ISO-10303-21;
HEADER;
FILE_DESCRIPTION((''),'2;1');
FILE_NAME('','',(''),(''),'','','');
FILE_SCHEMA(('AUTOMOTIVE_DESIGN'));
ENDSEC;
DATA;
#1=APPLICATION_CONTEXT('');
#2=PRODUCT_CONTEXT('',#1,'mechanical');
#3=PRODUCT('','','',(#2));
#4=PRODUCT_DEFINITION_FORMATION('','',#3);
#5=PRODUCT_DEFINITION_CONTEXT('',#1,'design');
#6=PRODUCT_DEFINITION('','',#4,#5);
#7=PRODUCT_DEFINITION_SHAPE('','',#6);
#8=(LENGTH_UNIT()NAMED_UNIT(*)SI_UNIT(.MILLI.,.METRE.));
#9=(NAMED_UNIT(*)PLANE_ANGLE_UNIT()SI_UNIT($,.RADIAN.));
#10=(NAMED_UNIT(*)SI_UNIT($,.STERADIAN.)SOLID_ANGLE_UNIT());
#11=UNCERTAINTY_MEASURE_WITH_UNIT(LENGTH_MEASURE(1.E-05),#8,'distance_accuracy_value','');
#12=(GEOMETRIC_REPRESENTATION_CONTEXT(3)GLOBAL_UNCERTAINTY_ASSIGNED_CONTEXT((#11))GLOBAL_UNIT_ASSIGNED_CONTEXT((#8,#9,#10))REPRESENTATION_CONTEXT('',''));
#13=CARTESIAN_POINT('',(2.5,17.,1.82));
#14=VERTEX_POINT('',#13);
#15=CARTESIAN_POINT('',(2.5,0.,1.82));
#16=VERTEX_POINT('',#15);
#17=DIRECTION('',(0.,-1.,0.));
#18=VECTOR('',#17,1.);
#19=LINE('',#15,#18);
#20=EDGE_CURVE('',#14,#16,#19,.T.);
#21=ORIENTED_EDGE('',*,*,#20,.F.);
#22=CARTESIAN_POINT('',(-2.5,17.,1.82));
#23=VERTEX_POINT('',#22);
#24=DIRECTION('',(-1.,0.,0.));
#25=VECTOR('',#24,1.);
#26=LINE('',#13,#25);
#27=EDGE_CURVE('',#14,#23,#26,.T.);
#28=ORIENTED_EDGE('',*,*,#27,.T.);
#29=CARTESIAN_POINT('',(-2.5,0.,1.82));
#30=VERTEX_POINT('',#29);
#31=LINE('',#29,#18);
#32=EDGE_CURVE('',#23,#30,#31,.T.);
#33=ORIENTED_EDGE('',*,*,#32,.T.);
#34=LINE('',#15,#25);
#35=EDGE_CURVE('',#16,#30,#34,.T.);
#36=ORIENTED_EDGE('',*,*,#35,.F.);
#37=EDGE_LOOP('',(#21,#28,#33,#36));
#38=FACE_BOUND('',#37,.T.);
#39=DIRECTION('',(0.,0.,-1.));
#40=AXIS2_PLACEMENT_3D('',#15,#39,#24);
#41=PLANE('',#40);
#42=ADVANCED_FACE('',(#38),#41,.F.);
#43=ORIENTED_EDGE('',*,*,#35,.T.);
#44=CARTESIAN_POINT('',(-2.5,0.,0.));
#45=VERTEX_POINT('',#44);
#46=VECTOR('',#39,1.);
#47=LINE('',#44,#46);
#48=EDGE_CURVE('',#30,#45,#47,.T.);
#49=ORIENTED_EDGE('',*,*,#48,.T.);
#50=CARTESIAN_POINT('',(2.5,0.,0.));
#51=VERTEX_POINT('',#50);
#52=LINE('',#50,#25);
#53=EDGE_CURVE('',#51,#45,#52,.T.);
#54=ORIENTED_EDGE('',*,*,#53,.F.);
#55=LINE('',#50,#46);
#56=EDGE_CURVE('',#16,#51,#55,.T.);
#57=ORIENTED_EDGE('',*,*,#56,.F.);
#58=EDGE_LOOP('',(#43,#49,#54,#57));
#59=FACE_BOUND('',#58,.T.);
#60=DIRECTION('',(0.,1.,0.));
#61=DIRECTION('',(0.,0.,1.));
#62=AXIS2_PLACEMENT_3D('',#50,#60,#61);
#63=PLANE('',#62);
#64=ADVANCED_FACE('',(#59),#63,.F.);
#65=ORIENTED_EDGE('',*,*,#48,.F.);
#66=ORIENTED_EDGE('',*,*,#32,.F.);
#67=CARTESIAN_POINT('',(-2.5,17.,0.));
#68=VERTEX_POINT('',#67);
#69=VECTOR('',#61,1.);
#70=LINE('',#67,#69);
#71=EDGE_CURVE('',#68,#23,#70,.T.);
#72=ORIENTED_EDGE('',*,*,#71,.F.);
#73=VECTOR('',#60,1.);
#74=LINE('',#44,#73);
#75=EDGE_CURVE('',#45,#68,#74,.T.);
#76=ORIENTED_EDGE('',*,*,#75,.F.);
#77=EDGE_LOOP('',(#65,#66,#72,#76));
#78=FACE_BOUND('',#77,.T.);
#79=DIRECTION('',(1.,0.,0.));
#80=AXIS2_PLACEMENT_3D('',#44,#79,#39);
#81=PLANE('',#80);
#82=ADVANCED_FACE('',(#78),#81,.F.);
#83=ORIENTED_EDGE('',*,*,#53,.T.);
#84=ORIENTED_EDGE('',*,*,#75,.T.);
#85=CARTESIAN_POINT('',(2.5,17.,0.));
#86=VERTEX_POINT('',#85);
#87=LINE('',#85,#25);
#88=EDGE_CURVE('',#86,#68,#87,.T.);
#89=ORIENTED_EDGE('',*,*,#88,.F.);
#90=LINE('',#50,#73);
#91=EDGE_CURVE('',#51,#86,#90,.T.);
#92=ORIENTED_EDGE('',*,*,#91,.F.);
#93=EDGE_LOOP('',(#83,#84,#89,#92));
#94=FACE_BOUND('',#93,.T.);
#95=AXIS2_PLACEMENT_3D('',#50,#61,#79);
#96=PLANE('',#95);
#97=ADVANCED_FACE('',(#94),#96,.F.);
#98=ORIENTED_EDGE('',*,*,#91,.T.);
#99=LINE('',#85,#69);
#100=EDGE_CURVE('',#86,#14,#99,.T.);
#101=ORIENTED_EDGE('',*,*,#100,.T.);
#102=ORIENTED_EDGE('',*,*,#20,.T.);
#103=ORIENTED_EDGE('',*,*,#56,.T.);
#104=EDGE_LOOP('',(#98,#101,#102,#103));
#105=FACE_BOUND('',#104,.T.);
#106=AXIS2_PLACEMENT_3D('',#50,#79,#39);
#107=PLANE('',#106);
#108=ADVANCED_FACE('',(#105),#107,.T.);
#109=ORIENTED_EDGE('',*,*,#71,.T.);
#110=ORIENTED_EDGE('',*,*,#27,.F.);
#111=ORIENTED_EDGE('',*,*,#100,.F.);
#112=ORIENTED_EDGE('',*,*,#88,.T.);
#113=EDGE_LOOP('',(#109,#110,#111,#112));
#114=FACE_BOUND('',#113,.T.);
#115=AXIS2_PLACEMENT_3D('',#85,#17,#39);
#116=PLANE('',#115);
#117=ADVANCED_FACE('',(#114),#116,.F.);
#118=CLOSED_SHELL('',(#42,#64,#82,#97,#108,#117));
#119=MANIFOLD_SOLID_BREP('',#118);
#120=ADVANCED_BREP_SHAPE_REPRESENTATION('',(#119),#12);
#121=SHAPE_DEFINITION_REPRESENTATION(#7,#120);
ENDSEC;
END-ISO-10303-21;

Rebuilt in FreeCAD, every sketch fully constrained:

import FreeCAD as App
import Part
import Sketcher

V = App.Vector

doc = App.newDocument("Part")
params = doc.addObject("Spreadsheet::Sheet", "Params")
for row, (alias, value) in enumerate([
    ("sketch1_width", "17 mm"),
    ("sketch1_height", "1.82 mm"),
    ("pad1_length", "5 mm"),
], start=1):
    params.set(f"A{row}", alias)
    params.set(f"B{row}", "=" + value)
    params.setAlias(f"B{row}", alias)

body = doc.addObject("PartDesign::Body", "Body")

# Sketch on YZ plane
sketch1 = body.newObject("Sketcher::SketchObject", "Sketch")
sketch1.AttachmentSupport = (doc.getObject("YZ_Plane"), [""])
sketch1.MapMode = "FlatFace"
sketch1.addGeometry(Part.LineSegment(V(17, 1.8, 0), V(0, 1.8, 0)), False)
sketch1.addGeometry(Part.LineSegment(V(0, 1.8, 0), V(0, 0, 0)), False)
sketch1.addGeometry(Part.LineSegment(V(0, 0, 0), V(17, 0, 0)), False)
sketch1.addGeometry(Part.LineSegment(V(17, 0, 0), V(17, 1.8, 0)), False)
sketch1.addConstraint(Sketcher.Constraint("Coincident", 0, 2, 1, 1))
sketch1.addConstraint(Sketcher.Constraint("Coincident", 1, 2, 2, 1))
sketch1.addConstraint(Sketcher.Constraint("Coincident", 2, 2, 3, 1))
sketch1.addConstraint(Sketcher.Constraint("Coincident", 3, 2, 0, 1))
sketch1.addConstraint(Sketcher.Constraint("Horizontal", 0))
sketch1.addConstraint(Sketcher.Constraint("Vertical", 1))
sketch1.addConstraint(Sketcher.Constraint("Horizontal", 2))
sketch1.addConstraint(Sketcher.Constraint("Vertical", 3))
sketch1.addConstraint(Sketcher.Constraint("Coincident", 1, 2, -1, 1))
sketch1.addConstraint(Sketcher.Constraint("DistanceX", 0, 2, 0, 1, 17.0))
sketch1.addConstraint(Sketcher.Constraint("DistanceY", 1, 2, 1, 1, 1.82))
sketch1.setExpression("Constraints[9]", "Params.sketch1_width")
sketch1.setExpression("Constraints[10]", "Params.sketch1_height")
pad1 = body.newObject("PartDesign::Pad", "Pad")
pad1.Profile = sketch1
pad1.setExpression("Length", "Params.pad1_length")
pad1.Midplane = True

doc.recompute()
